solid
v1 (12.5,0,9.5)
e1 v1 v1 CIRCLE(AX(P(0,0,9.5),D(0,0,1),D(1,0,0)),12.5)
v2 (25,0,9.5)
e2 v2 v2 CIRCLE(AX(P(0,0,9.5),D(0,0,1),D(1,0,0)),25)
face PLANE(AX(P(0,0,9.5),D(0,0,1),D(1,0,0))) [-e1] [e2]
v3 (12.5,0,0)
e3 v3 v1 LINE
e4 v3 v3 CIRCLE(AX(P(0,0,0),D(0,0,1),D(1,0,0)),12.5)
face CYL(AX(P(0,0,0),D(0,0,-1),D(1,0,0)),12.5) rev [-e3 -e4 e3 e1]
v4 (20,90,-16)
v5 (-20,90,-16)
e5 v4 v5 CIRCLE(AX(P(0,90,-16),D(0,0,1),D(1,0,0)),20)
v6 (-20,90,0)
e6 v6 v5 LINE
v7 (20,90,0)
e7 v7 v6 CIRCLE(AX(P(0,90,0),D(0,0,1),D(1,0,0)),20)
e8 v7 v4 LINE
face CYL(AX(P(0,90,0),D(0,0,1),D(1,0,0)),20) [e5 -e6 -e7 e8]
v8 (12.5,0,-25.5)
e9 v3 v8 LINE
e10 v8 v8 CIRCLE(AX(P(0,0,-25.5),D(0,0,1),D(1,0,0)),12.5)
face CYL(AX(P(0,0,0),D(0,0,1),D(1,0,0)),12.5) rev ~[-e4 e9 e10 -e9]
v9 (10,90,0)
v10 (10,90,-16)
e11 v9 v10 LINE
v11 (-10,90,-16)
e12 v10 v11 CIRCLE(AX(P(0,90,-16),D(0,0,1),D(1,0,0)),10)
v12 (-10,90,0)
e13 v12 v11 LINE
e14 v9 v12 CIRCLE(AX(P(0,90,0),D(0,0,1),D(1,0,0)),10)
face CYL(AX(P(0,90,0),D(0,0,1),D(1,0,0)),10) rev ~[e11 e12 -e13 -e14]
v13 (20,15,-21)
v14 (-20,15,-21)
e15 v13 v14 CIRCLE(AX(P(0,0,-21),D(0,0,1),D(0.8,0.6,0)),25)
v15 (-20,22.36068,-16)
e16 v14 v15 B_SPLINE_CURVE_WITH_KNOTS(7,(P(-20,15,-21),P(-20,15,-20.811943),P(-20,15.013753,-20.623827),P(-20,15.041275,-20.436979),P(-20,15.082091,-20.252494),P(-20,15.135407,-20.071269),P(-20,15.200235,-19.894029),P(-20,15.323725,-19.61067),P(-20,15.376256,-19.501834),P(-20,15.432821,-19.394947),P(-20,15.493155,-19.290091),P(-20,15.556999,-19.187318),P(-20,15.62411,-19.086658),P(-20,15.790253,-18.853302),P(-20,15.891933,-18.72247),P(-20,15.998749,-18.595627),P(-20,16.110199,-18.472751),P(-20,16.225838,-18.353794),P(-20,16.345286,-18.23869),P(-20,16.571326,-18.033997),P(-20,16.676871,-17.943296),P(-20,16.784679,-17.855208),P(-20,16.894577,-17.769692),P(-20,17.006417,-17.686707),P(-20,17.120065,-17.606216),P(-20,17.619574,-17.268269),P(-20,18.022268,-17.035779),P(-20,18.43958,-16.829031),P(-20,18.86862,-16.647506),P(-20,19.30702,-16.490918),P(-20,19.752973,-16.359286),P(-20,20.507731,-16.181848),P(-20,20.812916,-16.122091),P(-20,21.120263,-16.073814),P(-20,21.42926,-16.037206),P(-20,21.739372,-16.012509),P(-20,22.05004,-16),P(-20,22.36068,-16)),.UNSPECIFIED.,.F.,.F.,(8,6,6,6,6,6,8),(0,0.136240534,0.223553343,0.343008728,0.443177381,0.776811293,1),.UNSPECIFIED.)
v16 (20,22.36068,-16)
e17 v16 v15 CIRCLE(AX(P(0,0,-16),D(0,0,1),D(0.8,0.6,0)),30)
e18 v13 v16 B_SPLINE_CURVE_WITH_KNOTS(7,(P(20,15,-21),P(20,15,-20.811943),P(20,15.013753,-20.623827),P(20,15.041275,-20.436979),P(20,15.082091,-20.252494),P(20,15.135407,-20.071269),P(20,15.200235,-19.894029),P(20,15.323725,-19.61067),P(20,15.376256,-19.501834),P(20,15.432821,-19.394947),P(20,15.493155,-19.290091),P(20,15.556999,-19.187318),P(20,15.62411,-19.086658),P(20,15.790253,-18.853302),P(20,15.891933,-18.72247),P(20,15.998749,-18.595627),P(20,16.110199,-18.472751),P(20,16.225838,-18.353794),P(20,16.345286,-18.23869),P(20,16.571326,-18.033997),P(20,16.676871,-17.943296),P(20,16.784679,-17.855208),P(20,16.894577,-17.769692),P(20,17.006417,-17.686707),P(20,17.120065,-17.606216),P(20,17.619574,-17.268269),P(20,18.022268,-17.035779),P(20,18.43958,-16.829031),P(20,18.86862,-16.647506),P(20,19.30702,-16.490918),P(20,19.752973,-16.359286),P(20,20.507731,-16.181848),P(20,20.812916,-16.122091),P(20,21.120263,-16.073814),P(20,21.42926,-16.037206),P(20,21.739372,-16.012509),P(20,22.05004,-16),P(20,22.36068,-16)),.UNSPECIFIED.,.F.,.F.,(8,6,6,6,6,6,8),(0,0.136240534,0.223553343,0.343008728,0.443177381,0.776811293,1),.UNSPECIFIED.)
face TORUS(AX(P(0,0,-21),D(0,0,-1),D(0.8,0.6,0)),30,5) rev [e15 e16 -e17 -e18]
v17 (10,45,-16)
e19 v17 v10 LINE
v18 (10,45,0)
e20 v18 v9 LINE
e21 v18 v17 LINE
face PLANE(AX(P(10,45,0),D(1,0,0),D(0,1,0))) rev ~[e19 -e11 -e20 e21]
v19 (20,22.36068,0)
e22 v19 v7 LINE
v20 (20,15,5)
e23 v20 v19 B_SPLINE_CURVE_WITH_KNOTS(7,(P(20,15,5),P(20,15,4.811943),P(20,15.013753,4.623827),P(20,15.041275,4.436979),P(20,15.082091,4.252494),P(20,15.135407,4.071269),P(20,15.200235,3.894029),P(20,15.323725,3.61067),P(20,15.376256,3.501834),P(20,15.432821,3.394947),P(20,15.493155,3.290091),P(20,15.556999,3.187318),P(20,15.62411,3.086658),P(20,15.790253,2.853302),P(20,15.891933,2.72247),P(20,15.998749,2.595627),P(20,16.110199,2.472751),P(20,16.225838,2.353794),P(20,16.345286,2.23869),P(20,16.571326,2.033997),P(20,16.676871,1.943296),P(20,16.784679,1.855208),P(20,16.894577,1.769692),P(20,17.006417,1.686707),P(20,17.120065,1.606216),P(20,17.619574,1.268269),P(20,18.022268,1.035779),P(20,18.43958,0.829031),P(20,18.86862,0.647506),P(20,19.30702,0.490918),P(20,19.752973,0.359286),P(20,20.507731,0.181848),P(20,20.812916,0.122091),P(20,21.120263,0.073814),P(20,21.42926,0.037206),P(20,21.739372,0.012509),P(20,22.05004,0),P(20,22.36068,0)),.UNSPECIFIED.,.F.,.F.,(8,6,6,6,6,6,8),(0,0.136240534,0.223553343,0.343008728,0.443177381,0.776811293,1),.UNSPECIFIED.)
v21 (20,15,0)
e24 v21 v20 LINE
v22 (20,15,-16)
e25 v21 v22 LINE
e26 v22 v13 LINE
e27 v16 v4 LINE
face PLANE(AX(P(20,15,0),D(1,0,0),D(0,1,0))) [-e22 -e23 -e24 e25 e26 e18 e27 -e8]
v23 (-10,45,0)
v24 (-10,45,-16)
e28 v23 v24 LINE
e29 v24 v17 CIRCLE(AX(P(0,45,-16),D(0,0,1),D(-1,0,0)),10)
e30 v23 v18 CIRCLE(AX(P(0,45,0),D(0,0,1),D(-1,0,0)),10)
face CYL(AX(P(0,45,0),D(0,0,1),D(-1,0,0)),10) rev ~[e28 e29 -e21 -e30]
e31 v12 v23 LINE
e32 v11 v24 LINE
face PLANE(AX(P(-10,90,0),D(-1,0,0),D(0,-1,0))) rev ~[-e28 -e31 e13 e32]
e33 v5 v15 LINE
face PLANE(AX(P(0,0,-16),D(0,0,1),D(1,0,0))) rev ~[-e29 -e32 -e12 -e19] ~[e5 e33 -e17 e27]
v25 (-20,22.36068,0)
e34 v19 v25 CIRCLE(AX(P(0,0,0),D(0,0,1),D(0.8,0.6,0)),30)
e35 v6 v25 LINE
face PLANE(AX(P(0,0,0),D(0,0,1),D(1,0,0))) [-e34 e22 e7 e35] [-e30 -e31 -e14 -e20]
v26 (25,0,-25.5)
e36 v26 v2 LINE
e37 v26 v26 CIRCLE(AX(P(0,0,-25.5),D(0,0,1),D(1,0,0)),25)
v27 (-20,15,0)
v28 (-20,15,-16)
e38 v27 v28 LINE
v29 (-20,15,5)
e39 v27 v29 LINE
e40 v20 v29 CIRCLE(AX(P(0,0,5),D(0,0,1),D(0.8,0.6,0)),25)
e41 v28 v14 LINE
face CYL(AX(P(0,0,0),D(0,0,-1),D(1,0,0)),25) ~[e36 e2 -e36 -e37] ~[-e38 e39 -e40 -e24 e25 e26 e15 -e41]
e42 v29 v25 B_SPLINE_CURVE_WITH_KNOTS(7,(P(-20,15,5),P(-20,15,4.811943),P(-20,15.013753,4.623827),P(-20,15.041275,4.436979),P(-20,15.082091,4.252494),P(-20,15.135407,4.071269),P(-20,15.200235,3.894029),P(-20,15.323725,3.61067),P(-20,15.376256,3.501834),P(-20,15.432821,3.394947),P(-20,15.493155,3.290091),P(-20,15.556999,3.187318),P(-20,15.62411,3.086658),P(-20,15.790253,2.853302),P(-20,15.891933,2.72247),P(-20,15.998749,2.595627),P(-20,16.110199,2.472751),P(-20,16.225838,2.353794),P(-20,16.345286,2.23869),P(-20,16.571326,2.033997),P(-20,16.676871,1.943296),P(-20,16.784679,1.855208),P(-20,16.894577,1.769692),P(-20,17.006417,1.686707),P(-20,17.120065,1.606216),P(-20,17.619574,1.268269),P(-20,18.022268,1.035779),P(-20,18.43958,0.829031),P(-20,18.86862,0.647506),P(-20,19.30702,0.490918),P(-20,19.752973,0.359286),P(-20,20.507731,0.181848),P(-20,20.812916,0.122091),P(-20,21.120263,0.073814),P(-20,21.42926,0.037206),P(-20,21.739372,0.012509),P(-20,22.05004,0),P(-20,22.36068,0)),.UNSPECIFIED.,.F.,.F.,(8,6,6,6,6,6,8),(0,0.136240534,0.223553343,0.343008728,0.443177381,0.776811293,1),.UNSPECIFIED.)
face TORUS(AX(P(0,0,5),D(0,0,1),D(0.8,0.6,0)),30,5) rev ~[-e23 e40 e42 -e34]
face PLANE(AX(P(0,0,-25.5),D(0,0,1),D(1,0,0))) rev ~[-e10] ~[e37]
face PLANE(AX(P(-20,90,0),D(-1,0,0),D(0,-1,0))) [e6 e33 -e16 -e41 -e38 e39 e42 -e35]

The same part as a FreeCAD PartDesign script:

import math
import FreeCAD as App
import Part
import Sketcher

V = App.Vector
Q = App.Units.Quantity


def edges_at(feature, points):
    """Names of the edges that pass closest to the given points."""
    edges = feature.Shape.Edges
    near = lambda p: min(range(len(edges)), key=lambda i: edges[i].distToShape(Part.Vertex(*p))[0])
    return sorted({f"Edge{near(p) + 1}" for p in points})

doc = App.newDocument("Part")
params = doc.addObject("Spreadsheet::Sheet", "Params")
for row, (alias, value) in enumerate([
    ("sketch1_diameter", "50 mm"),
    ("pad1_length", "25.5 mm"),
    ("sketch2_diameter", "25 mm"),
    ("pocket1_length", "35 mm"),
    ("sketch3_radius", "20 mm"),
    ("sketch3_radius2", "10 mm"),
    ("sketch3_height", "45 mm"),
    ("sketch3_radius3", "25 mm"),
    ("pad2_length", "16 mm"),
    ("sketch4_diameter", "50 mm"),
    ("sketch4_diameter2", "25 mm"),
    ("pad3_length", "9.5 mm"),
    ("fillet_radius", "5 mm"),
    ("fillet2_radius", "5 mm"),
], start=1):
    params.set(f"A{row}", alias)
    params.set(f"B{row}", "=" + value)
    params.setAlias(f"B{row}", alias)

body = doc.addObject("PartDesign::Body", "Body")

sketch1 = doc.addObject("Sketcher::SketchObject", "Sketch")
body.addObject(sketch1)
sketch1.AttachmentSupport = (doc.XY_Plane, [""])
sketch1.MapMode = "FlatFace"
sketch1.addGeometry(Part.Circle(V(0, 0, 0), V(0, 0, 1), 25), False)
sketch1.addConstraint(Sketcher.Constraint("Coincident", 0, 3, -1, 1))
sketch1.addConstraint(Sketcher.Constraint("Diameter", 0, Q("50 mm")))
sketch1.setExpression("Constraints[1]", "Params.sketch1_diameter")
pad1 = doc.addObject("PartDesign::Pad", "Pad")
body.addObject(pad1)
pad1.Profile = sketch1
pad1.setExpression("Length", "Params.pad1_length")
pad1.Reversed = True

sketch2 = doc.addObject("Sketcher::SketchObject", "Sketch001")
body.addObject(sketch2)
sketch2.AttachmentSupport = (doc.XY_Plane, [""])
sketch2.MapMode = "FlatFace"
sketch2.addGeometry(Part.Circle(V(0, 0, 0), V(0, 0, 1), 12), False)
sketch2.addConstraint(Sketcher.Constraint("Coincident", 0, 3, -1, 1))
sketch2.addConstraint(Sketcher.Constraint("Diameter", 0, Q("25 mm")))
sketch2.setExpression("Constraints[1]", "Params.sketch2_diameter")
pocket1 = doc.addObject("PartDesign::Pocket", "Pocket")
body.addObject(pocket1)
pocket1.Profile = sketch2
pocket1.setExpression("Length", "Params.pocket1_length")

sketch3 = doc.addObject("Sketcher::SketchObject", "Sketch002")
body.addObject(sketch3)
sketch3.AttachmentSupport = (doc.XY_Plane, [""])
sketch3.MapMode = "FlatFace"
sketch3.addGeometry(Part.ArcOfCircle(Part.Circle(V(0, 0, 0), V(0, 0, 1), 25), math.radians(37), math.radians(143)), False)
sketch3.addGeometry(Part.LineSegment(V(20, 15, 0), V(20, 90, 0)), False)
sketch3.addGeometry(Part.ArcOfCircle(Part.Circle(V(0, 90, 0), V(0, 0, 1), 20), math.radians(0), math.radians(180)), False)
sketch3.addGeometry(Part.LineSegment(V(-20, 90, 0), V(-20, 15, 0)), False)
sketch3.addGeometry(Part.ArcOfCircle(Part.Circle(V(0, 90, 0), V(0, 0, 1), 10), math.radians(0), math.radians(180)), False)
sketch3.addGeometry(Part.LineSegment(V(10, 90, 0), V(10, 45, 0)), False)
sketch3.addGeometry(Part.ArcOfCircle(Part.Circle(V(0, 45, 0), V(0, 0, 1), 10), math.radians(180), math.radians(360)), False)
sketch3.addGeometry(Part.LineSegment(V(-10, 45, 0), V(-10, 90, 0)), False)
sketch3.addConstraint(Sketcher.Constraint("Coincident", 0, 1, 1, 1))
sketch3.addConstraint(Sketcher.Constraint("Tangent", 1, 2, 2, 1))
sketch3.addConstraint(Sketcher.Constraint("Tangent", 2, 2, 3, 1))
sketch3.addConstraint(Sketcher.Constraint("Coincident", 3, 2, 0, 2))
sketch3.addConstraint(Sketcher.Constraint("Tangent", 4, 1, 5, 1))
sketch3.addConstraint(Sketcher.Constraint("Tangent", 5, 2, 6, 2))
sketch3.addConstraint(Sketcher.Constraint("Tangent", 6, 1, 7, 1))
sketch3.addConstraint(Sketcher.Constraint("Tangent", 7, 2, 4, 2))
sketch3.addConstraint(Sketcher.Constraint("Vertical", 1))
sketch3.addConstraint(Sketcher.Constraint("Vertical", 3))
sketch3.addConstraint(Sketcher.Constraint("Vertical", 5))
sketch3.addConstraint(Sketcher.Constraint("Vertical", 7))
sketch3.addConstraint(Sketcher.Constraint("Coincident", 0, 3, -1, 1))
sketch3.addConstraint(Sketcher.Constraint("Coincident", 4, 3, 2, 3))
sketch3.addConstraint(Sketcher.Constraint("PointOnObject", 2, 3, -2))
sketch3.addConstraint(Sketcher.Constraint("Radius", 2, Q("20 mm")))
sketch3.addConstraint(Sketcher.Constraint("Radius", 4, Q("10 mm")))
sketch3.addConstraint(Sketcher.Constraint("DistanceY", 5, 2, 5, 1, Q("45 mm")))
sketch3.addConstraint(Sketcher.Constraint("DistanceY", -1, 1, 2, 3, Q("90 mm")))
sketch3.addConstraint(Sketcher.Constraint("Radius", 0, Q("25 mm")))
sketch3.setExpression("Constraints[15]", "Params.sketch3_radius")
sketch3.setExpression("Constraints[16]", "Params.sketch3_radius2")
sketch3.setExpression("Constraints[17]", "Params.sketch3_height")
sketch3.setExpression("Constraints[19]", "Params.sketch3_radius3")
pad2 = doc.addObject("PartDesign::Pad", "Pad001")
body.addObject(pad2)
pad2.Profile = sketch3
pad2.setExpression("Length", "Params.pad2_length")
pad2.Reversed = True

sketch4 = doc.addObject("Sketcher::SketchObject", "Sketch003")
body.addObject(sketch4)
sketch4.AttachmentSupport = (doc.XY_Plane, [""])
sketch4.MapMode = "FlatFace"
sketch4.addGeometry(Part.Circle(V(0, 0, 0), V(0, 0, 1), 25), False)
sketch4.addGeometry(Part.Circle(V(0, 0, 0), V(0, 0, 1), 12), False)
sketch4.addConstraint(Sketcher.Constraint("Coincident", 0, 3, -1, 1))
sketch4.addConstraint(Sketcher.Constraint("Coincident", 1, 3, -1, 1))
sketch4.addConstraint(Sketcher.Constraint("Diameter", 0, Q("50 mm")))
sketch4.addConstraint(Sketcher.Constraint("Diameter", 1, Q("25 mm")))
sketch4.setExpression("Constraints[2]", "Params.sketch4_diameter")
sketch4.setExpression("Constraints[3]", "Params.sketch4_diameter2")
pad3 = doc.addObject("PartDesign::Pad", "Pad002")
body.addObject(pad3)
pad3.Profile = sketch4
pad3.setExpression("Length", "Params.pad3_length")
doc.recompute()

fillet = doc.addObject("PartDesign::Fillet", "Fillet")
body.addObject(fillet)
fillet.Base = (pad3, edges_at(pad3, [(0, 25, 0)]))
fillet.setExpression("Radius", "Params.fillet_radius")
doc.recompute()

fillet2 = doc.addObject("PartDesign::Fillet", "Fillet001")
body.addObject(fillet2)
fillet2.Base = (fillet, edges_at(fillet, [(0, 25, -16)]))
fillet2.setExpression("Radius", "Params.fillet2_radius")

doc.recompute()
